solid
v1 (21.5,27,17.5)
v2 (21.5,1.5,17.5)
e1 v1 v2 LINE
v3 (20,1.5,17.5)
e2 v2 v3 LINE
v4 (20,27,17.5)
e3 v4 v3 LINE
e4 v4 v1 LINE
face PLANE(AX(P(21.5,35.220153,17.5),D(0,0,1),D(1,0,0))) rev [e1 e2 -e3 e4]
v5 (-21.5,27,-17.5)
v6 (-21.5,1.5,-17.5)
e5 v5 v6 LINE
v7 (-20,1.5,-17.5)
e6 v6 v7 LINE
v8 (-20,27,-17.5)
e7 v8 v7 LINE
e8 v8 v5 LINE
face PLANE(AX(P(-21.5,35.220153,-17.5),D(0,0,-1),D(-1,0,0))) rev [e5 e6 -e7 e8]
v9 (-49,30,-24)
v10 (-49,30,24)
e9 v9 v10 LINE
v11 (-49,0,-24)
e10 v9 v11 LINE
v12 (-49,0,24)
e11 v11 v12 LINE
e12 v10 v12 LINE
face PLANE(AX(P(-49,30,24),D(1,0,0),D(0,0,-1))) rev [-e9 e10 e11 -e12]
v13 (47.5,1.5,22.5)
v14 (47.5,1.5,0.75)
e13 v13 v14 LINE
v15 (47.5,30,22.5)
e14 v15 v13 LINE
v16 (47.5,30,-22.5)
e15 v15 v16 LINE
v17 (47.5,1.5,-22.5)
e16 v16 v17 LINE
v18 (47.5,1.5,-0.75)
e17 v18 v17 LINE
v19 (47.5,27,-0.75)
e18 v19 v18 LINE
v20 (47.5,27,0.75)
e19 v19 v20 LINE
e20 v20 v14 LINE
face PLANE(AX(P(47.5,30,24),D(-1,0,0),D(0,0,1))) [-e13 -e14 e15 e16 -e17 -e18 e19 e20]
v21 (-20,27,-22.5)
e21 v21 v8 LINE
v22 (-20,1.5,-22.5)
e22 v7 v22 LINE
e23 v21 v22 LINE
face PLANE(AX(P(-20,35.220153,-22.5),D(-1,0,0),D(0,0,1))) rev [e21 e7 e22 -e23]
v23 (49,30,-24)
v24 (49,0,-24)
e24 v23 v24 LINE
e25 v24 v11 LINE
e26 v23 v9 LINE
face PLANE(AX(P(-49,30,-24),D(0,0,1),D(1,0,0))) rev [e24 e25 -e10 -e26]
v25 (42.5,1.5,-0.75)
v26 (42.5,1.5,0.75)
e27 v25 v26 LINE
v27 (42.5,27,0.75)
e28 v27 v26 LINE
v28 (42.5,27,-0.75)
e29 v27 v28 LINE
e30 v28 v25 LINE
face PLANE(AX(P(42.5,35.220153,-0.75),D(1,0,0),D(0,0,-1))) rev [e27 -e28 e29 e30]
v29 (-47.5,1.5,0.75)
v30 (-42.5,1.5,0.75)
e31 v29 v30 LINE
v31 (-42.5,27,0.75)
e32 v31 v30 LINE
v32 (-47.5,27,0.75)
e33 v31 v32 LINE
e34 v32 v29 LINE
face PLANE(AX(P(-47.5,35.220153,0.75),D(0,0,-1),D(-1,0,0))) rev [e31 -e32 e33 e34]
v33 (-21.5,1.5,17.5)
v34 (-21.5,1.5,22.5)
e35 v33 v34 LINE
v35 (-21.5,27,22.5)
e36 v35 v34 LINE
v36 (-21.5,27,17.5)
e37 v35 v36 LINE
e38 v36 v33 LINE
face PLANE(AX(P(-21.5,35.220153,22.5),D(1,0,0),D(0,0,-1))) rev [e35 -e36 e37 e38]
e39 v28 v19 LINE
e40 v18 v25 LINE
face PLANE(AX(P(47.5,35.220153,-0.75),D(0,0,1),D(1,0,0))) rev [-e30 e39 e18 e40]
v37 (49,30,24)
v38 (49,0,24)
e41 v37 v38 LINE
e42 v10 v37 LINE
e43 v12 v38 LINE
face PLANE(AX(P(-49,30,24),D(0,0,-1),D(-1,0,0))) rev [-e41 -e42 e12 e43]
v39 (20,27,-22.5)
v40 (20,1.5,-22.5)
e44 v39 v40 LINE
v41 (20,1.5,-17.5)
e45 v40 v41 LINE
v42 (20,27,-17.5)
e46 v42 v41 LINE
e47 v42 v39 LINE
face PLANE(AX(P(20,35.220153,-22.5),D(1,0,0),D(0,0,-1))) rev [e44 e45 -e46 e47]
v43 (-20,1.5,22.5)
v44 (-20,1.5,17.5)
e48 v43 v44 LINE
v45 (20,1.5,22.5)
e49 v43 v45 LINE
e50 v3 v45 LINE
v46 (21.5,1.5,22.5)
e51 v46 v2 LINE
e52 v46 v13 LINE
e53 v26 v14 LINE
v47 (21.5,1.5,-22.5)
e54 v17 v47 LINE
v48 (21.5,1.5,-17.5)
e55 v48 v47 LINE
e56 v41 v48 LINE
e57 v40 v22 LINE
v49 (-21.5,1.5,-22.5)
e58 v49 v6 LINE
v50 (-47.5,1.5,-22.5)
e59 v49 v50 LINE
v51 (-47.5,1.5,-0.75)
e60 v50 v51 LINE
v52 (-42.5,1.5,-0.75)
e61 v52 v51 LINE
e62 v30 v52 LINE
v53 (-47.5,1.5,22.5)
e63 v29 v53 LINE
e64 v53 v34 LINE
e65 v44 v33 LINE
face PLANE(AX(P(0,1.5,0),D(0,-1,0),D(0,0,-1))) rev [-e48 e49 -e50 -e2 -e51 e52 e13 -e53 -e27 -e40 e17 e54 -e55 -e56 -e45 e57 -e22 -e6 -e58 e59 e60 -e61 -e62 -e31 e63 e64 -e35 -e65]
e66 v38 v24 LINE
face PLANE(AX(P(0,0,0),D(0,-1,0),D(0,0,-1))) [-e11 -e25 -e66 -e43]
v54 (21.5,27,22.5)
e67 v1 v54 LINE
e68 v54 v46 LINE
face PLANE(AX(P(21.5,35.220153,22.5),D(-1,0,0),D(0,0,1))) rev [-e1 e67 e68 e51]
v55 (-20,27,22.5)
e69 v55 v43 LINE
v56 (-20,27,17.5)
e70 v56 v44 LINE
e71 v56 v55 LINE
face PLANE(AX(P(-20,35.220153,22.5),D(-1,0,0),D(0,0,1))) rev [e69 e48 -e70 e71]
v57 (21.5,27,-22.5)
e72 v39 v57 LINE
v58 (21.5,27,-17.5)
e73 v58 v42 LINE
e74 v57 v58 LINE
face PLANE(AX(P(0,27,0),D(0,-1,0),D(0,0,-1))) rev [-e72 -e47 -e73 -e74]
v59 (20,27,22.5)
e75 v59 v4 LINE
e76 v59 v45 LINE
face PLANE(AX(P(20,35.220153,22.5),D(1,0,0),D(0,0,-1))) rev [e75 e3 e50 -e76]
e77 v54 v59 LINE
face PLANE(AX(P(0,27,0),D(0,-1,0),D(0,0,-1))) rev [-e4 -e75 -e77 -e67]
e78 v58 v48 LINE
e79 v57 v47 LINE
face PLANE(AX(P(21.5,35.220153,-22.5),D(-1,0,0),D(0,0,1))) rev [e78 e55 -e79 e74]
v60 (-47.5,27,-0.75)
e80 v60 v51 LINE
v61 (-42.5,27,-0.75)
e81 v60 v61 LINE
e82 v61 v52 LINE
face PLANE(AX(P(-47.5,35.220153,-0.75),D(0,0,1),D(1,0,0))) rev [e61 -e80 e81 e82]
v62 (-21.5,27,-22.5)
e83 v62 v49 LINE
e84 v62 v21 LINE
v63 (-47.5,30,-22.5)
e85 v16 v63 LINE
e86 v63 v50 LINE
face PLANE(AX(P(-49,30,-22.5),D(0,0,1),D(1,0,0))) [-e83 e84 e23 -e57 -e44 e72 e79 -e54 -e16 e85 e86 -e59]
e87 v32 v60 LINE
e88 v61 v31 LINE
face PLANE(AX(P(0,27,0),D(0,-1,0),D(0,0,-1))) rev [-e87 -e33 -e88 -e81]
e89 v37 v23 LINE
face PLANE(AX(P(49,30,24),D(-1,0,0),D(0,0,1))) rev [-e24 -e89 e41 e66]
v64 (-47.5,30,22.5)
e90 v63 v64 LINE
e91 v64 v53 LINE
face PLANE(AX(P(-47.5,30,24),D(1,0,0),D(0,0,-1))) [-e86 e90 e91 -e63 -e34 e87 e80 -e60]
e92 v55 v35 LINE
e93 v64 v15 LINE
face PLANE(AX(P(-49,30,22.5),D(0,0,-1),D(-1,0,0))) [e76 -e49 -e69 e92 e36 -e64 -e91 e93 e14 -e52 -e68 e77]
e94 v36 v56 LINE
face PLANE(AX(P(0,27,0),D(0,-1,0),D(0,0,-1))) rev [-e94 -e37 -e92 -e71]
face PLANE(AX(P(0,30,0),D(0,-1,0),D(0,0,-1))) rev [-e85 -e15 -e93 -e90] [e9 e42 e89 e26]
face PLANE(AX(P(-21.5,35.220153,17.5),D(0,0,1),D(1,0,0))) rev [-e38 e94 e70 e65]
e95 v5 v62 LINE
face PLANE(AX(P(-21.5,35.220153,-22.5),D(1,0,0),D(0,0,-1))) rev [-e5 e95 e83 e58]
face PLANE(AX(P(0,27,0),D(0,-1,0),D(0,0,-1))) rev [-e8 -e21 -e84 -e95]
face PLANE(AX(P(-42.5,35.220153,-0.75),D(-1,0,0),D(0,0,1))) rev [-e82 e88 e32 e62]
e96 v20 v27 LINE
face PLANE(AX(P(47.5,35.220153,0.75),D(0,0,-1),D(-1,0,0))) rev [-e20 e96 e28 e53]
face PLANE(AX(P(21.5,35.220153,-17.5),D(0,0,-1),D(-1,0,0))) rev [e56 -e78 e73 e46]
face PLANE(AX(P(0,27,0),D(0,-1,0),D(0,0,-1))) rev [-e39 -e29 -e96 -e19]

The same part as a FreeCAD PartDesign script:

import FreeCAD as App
import Part
import Sketcher

V = App.Vector
Q = App.Units.Quantity


def faces_at(feature, points):
    """Names of the faces that lie closest to the given points."""
    faces = feature.Shape.Faces
    near = lambda p: min(range(len(faces)), key=lambda i: faces[i].distToShape(Part.Vertex(*p))[0])
    return sorted({f"Face{near(p) + 1}" for p in points})

doc = App.newDocument("Part")
body = doc.addObject("PartDesign::Body", "Body")

# Sketch on XZ plane
sketch1 = body.newObject("Sketcher::SketchObject", "Sketch")
sketch1.AttachmentSupport = (doc.getObject("XZ_Plane"), [""])
sketch1.MapMode = "FlatFace"
sketch1.addGeometry([
    Part.LineSegment(V(-49, -24, 0), V(-49, 24, 0)),
    Part.LineSegment(V(-49, 24, 0), V(49, 24, 0)),
    Part.LineSegment(V(49, 24, 0), V(49, -24, 0)),
    Part.LineSegment(V(49, -24, 0), V(-49, -24, 0)),
], False)
sketch1.addConstraint([
    Sketcher.Constraint("Coincident", 0, 2, 1, 1),
    Sketcher.Constraint("Coincident", 1, 2, 2, 1),
    Sketcher.Constraint("Coincident", 2, 2, 3, 1),
    Sketcher.Constraint("Coincident", 3, 2, 0, 1),
    Sketcher.Constraint("Vertical", 0),
    Sketcher.Constraint("Horizontal", 1),
    Sketcher.Constraint("Vertical", 2),
    Sketcher.Constraint("Horizontal", 3),
    Sketcher.Constraint("Symmetric", 0, 2, 2, 2, -1, 1),
    Sketcher.Constraint("DistanceX", 1, 1, 1, 2, Q("98 mm")),
    Sketcher.Constraint("DistanceY", 0, 1, 0, 2, Q("48 mm")),
])
pad1 = body.newObject("PartDesign::Pad", "Pad")
pad1.Profile = sketch1
pad1.Length = 30
pad1.Reversed = True
doc.recompute()

thickness = body.newObject("PartDesign::Thickness", "Thickness")
thickness.Base = (pad1, faces_at(pad1, [(0, 30, 0)]))
thickness.Value = 1.5
thickness.Reversed = True
thickness.Join = "Intersection"

# Sketch on XZ plane
sketch2 = body.newObject("Sketcher::SketchObject", "Sketch001")
sketch2.AttachmentSupport = (doc.getObject("XZ_Plane"), [""])
sketch2.MapMode = "FlatFace"
sketch2.AttachmentOffset = App.Placement(V(0, 0, -1.5), App.Rotation())
sketch2.addGeometry([
    Part.LineSegment(V(-21.5, -22.5, 0), V(-21.5, -17.5, 0)),  # 0
    Part.LineSegment(V(-21.5, -17.5, 0), V(-20, -17.5, 0)),  # 1
    Part.LineSegment(V(-20, -17.5, 0), V(-20, -22.5, 0)),  # 2
    Part.LineSegment(V(-20, -22.5, 0), V(-21.5, -22.5, 0)),  # 3
    Part.LineSegment(V(20, -22.5, 0), V(20, -17.5, 0)),  # 4
    Part.LineSegment(V(20, -17.5, 0), V(21.5, -17.5, 0)),  # 5
    Part.LineSegment(V(21.5, -17.5, 0), V(21.5, -22.5, 0)),  # 6
    Part.LineSegment(V(21.5, -22.5, 0), V(20, -22.5, 0)),  # 7
    Part.LineSegment(V(20, 17.5, 0), V(20, 22.5, 0)),  # 8
    Part.LineSegment(V(20, 22.5, 0), V(21.5, 22.5, 0)),  # 9
    Part.LineSegment(V(21.5, 22.5, 0), V(21.5, 17.5, 0)),  # 10
    Part.LineSegment(V(21.5, 17.5, 0), V(20, 17.5, 0)),  # 11
    Part.LineSegment(V(-21.5, 17.5, 0), V(-21.5, 22.5, 0)),  # 12
    Part.LineSegment(V(-21.5, 22.5, 0), V(-20, 22.5, 0)),  # 13
    Part.LineSegment(V(-20, 22.5, 0), V(-20, 17.5, 0)),  # 14
    Part.LineSegment(V(-20, 17.5, 0), V(-21.5, 17.5, 0)),  # 15
    Part.LineSegment(V(42.5, -0.8, 0), V(42.5, 0.8, 0)),  # 16
    Part.LineSegment(V(42.5, 0.8, 0), V(47.5, 0.8, 0)),  # 17
    Part.LineSegment(V(47.5, 0.8, 0), V(47.5, -0.8, 0)),  # 18
    Part.LineSegment(V(47.5, -0.8, 0), V(42.5, -0.8, 0)),  # 19
    Part.LineSegment(V(-47.5, -0.8, 0), V(-47.5, 0.8, 0)),  # 20
    Part.LineSegment(V(-47.5, 0.8, 0), V(-42.5, 0.8, 0)),  # 21
    Part.LineSegment(V(-42.5, 0.8, 0), V(-42.5, -0.8, 0)),  # 22
    Part.LineSegment(V(-42.5, -0.8, 0), V(-47.5, -0.8, 0)),  # 23
], False)
sketch2.addConstraint([
    Sketcher.Constraint("Coincident", 0, 2, 1, 1),
    Sketcher.Constraint("Coincident", 1, 2, 2, 1),
    Sketcher.Constraint("Coincident", 2, 2, 3, 1),
    Sketcher.Constraint("Coincident", 3, 2, 0, 1),
    Sketcher.Constraint("Coincident", 4, 2, 5, 1),
    Sketcher.Constraint("Coincident", 5, 2, 6, 1),
    Sketcher.Constraint("Coincident", 6, 2, 7, 1),
    Sketcher.Constraint("Coincident", 7, 2, 4, 1),
    Sketcher.Constraint("Coincident", 8, 2, 9, 1),
    Sketcher.Constraint("Coincident", 9, 2, 10, 1),
    Sketcher.Constraint("Coincident", 10, 2, 11, 1),
    Sketcher.Constraint("Coincident", 11, 2, 8, 1),
    Sketcher.Constraint("Coincident", 12, 2, 13, 1),
    Sketcher.Constraint("Coincident", 13, 2, 14, 1),
    Sketcher.Constraint("Coincident", 14, 2, 15, 1),
    Sketcher.Constraint("Coincident", 15, 2, 12, 1),
    Sketcher.Constraint("Coincident", 16, 2, 17, 1),
    Sketcher.Constraint("Coincident", 17, 2, 18, 1),
    Sketcher.Constraint("Coincident", 18, 2, 19, 1),
    Sketcher.Constraint("Coincident", 19, 2, 16, 1),
    Sketcher.Constraint("Coincident", 20, 2, 21, 1),
    Sketcher.Constraint("Coincident", 21, 2, 22, 1),
    Sketcher.Constraint("Coincident", 22, 2, 23, 1),
    Sketcher.Constraint("Coincident", 23, 2, 20, 1),
    Sketcher.Constraint("Vertical", 0),
    Sketcher.Constraint("Horizontal", 1),
    Sketcher.Constraint("Vertical", 2),
    Sketcher.Constraint("Horizontal", 3),
    Sketcher.Constraint("Vertical", 4),
    Sketcher.Constraint("Horizontal", 5),
    Sketcher.Constraint("Vertical", 6),
    Sketcher.Constraint("Horizontal", 7),
    Sketcher.Constraint("Vertical", 8),
    Sketcher.Constraint("Horizontal", 9),
    Sketcher.Constraint("Vertical", 10),
    Sketcher.Constraint("Horizontal", 11),
    Sketcher.Constraint("Vertical", 12),
    Sketcher.Constraint("Horizontal", 13),
    Sketcher.Constraint("Vertical", 14),
    Sketcher.Constraint("Horizontal", 15),
    Sketcher.Constraint("Vertical", 16),
    Sketcher.Constraint("Horizontal", 17),
    Sketcher.Constraint("Vertical", 18),
    Sketcher.Constraint("Horizontal", 19),
    Sketcher.Constraint("Vertical", 20),
    Sketcher.Constraint("Horizontal", 21),
    Sketcher.Constraint("Vertical", 22),
    Sketcher.Constraint("Horizontal", 23),
    Sketcher.Constraint("Symmetric", 2, 2, 8, 2, -1, 1),
    Sketcher.Constraint("Symmetric", 0, 2, 10, 2, -1, 1),
    Sketcher.Constraint("Symmetric", 6, 2, 12, 2, -1, 1),
    Sketcher.Constraint("Symmetric", 4, 2, 14, 2, -1, 1),
    Sketcher.Constraint("Symmetric", 18, 2, 20, 2, -1, 1),
    Sketcher.Constraint("Symmetric", 16, 2, 22, 2, -1, 1),
    Sketcher.Constraint("Symmetric", 1, 2, 4, 2, -2),
    Sketcher.Constraint("Symmetric", 3, 2, 6, 2, -2),
    Sketcher.Constraint("Horizontal", 17, 2, 20, 2),
    Sketcher.Constraint("Equal", 23, 0),
    Sketcher.Constraint("Equal", 15, 16),
    Sketcher.Constraint("DistanceX", 17, 1, 17, 2, Q("5 mm")),
    Sketcher.Constraint("DistanceX", 1, 1, 1, 2, Q("1.5 mm")),
    Sketcher.Constraint("DistanceX", 1, 2, -1, 1, Q("20 mm")),
    Sketcher.Constraint("DistanceY", 4, 2, 8, 2, Q("40 mm")),
    Sketcher.Constraint("DistanceX", 10, 2, 16, 2, Q("21 mm")),
])
pad2 = body.newObject("PartDesign::Pad", "Pad001")
pad2.Profile = sketch2
pad2.Length = 25.5
pad2.Reversed = True

doc.recompute()
